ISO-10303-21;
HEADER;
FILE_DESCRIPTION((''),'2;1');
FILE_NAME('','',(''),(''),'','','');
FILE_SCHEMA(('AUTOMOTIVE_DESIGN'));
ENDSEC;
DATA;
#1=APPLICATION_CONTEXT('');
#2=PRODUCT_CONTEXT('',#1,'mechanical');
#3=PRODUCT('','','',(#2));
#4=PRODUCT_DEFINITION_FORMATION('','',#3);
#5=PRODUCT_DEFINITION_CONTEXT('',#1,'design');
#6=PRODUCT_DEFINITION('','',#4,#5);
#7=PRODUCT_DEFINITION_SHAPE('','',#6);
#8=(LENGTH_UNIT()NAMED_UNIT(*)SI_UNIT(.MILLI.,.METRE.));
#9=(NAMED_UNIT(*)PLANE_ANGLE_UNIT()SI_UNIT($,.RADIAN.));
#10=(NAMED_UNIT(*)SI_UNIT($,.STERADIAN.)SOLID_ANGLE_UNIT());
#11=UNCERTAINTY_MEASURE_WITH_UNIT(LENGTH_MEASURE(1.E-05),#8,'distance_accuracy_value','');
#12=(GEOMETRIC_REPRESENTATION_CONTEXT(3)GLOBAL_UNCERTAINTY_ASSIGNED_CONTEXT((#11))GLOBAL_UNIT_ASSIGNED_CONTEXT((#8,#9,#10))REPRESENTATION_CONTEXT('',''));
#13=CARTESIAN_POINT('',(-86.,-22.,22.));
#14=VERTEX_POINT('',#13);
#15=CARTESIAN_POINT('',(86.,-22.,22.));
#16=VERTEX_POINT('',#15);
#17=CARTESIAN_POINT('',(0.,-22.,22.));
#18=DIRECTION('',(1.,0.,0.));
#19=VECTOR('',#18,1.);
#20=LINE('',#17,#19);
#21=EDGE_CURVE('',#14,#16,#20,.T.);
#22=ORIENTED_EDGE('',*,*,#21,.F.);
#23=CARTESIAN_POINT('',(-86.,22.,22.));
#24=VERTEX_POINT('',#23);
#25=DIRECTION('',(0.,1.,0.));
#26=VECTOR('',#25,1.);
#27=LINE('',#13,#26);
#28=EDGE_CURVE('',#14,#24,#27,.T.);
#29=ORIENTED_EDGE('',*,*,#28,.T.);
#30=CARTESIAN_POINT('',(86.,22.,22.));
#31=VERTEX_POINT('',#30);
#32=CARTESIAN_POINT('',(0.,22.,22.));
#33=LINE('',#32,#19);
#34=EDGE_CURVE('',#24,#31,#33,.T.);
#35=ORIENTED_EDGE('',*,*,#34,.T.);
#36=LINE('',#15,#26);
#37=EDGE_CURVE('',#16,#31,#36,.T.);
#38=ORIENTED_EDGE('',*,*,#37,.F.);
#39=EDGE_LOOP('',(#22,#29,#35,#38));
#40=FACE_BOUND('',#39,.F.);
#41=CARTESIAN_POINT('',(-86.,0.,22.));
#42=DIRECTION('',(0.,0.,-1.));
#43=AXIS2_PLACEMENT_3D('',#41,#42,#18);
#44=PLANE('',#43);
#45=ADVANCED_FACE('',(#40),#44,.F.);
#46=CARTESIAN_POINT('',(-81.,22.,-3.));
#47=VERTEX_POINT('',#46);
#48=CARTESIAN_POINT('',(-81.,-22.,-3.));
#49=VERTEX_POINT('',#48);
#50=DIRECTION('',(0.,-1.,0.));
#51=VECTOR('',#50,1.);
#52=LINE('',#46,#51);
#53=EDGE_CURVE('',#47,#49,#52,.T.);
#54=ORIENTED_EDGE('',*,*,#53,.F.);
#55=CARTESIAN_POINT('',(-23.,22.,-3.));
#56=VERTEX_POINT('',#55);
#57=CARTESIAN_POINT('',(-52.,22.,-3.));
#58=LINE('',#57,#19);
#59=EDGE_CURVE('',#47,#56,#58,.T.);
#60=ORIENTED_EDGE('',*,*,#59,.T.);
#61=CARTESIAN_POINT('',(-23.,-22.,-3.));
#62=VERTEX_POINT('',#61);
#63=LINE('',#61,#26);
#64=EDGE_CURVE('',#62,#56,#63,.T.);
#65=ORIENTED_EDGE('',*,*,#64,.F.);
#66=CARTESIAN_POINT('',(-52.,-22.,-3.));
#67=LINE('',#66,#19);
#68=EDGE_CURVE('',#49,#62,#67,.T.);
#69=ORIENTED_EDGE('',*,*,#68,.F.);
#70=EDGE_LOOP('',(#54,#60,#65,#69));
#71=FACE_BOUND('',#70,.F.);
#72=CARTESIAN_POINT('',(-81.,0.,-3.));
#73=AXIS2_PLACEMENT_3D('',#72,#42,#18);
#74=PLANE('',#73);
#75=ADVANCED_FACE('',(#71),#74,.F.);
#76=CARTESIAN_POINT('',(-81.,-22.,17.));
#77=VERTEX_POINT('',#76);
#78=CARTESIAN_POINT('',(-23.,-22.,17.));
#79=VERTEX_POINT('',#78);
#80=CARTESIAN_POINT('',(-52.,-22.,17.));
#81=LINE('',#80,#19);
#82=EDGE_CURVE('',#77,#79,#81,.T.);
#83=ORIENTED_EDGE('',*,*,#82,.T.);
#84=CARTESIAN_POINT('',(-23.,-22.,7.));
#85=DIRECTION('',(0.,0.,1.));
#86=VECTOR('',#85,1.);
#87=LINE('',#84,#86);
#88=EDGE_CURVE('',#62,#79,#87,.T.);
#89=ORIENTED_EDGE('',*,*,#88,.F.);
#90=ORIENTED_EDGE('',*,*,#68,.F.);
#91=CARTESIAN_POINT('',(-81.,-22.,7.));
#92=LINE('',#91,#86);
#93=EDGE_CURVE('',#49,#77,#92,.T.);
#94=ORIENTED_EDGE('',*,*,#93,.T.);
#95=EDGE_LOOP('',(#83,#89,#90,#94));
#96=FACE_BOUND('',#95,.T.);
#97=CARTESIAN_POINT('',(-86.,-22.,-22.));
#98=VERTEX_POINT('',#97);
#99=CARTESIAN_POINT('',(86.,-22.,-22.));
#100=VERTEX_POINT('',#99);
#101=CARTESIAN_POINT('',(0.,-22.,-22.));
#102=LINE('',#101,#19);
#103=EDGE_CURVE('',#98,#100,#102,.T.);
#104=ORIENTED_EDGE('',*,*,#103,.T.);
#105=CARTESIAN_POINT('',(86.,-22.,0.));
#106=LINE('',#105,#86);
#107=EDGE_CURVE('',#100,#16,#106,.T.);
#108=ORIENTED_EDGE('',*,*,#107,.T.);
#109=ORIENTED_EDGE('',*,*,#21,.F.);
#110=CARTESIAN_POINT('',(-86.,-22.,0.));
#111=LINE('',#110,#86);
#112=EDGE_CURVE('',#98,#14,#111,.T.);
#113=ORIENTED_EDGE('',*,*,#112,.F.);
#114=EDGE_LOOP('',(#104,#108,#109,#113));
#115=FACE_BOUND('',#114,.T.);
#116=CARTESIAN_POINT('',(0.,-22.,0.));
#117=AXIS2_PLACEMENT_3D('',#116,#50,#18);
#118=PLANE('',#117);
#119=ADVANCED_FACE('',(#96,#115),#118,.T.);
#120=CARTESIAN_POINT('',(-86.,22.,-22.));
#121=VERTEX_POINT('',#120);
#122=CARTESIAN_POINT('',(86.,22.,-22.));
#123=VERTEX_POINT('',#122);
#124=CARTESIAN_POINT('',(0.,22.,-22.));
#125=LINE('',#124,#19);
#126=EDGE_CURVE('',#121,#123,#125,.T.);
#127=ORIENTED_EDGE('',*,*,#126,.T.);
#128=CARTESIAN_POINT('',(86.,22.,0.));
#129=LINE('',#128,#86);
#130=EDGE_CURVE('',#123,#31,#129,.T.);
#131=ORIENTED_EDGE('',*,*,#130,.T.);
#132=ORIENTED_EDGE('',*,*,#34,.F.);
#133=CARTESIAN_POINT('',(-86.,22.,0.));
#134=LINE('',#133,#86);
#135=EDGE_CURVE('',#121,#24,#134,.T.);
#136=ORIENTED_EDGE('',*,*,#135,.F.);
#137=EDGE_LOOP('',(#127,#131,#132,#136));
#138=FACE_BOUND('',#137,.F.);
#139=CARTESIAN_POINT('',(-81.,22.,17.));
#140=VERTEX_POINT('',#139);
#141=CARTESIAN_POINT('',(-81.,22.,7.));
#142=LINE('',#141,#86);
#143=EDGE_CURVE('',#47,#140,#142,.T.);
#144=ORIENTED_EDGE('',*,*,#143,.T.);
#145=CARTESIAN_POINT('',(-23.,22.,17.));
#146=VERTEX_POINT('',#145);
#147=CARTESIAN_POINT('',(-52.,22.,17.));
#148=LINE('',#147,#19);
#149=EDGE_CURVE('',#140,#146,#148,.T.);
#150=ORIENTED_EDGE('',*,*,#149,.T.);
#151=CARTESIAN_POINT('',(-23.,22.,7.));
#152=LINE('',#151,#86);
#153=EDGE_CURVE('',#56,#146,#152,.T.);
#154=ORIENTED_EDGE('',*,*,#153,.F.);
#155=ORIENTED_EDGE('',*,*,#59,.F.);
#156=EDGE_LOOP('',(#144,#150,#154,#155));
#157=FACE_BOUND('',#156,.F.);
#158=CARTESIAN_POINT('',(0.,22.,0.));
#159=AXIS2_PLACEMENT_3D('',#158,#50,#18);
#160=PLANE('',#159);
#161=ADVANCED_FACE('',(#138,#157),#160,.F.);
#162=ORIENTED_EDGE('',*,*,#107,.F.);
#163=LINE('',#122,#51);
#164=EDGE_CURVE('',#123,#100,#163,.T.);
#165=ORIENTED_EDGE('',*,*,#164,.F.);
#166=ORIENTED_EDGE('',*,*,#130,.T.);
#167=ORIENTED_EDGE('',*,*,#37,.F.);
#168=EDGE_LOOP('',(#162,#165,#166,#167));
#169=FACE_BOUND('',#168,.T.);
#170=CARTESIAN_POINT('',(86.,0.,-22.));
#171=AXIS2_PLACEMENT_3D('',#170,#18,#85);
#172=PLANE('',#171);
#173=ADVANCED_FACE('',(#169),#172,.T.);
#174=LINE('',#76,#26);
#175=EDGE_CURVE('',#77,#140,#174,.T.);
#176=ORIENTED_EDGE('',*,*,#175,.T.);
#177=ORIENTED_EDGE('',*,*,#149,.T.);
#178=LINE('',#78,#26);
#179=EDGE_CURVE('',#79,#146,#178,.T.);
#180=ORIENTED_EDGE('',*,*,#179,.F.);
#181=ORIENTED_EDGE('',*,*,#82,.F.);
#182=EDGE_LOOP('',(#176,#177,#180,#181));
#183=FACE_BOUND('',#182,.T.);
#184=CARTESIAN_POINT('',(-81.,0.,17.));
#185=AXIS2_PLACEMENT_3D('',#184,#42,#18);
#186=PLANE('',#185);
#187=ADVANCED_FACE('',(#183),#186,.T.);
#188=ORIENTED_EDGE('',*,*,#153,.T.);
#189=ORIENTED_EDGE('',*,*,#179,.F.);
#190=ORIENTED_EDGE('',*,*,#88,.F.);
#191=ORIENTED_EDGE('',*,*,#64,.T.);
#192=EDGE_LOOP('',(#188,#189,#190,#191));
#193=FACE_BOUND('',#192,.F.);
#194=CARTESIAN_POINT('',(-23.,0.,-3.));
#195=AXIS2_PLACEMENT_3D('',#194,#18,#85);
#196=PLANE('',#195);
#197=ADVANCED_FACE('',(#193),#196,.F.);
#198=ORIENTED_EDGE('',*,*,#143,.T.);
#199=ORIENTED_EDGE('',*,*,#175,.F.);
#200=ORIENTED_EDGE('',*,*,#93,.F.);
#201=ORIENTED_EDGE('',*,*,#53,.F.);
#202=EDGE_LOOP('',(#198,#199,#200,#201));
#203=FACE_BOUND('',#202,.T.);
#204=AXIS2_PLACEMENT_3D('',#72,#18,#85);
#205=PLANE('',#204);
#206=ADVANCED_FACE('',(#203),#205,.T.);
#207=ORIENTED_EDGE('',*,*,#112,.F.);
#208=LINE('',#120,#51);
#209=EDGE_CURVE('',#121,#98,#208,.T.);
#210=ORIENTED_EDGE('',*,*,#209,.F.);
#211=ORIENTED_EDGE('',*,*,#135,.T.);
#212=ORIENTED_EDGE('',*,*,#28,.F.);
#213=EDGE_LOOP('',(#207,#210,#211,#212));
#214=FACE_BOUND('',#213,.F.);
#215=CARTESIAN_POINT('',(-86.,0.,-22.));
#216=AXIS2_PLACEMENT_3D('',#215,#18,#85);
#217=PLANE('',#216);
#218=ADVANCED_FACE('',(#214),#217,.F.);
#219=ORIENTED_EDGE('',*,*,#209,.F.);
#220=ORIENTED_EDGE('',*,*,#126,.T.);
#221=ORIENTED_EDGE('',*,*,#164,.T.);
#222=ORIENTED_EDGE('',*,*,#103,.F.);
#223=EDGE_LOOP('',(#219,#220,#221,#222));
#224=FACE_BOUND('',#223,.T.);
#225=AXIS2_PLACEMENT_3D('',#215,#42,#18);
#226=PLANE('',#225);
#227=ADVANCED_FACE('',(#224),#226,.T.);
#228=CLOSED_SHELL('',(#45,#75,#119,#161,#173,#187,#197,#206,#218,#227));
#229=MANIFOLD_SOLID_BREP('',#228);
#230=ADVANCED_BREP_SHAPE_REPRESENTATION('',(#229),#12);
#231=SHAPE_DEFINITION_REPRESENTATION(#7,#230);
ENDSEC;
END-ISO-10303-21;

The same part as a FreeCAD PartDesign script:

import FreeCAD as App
import Part
import Sketcher

V = App.Vector
Q = App.Units.Quantity

doc = App.newDocument("Part")
body = doc.addObject("PartDesign::Body", "Body")

# Sketch on XZ plane
sketch1 = body.newObject("Sketcher::SketchObject", "Sketch")
sketch1.AttachmentSupport = (doc.getObject("XZ_Plane"), [""])
sketch1.MapMode = "FlatFace"
sketch1.addGeometry([
    Part.LineSegment(V(-86, 22, 0), V(-86, -22, 0)),  # 0
    Part.LineSegment(V(-86, -22, 0), V(86, -22, 0)),  # 1
    Part.LineSegment(V(86, -22, 0), V(86, 22, 0)),  # 2
    Part.LineSegment(V(86, 22, 0), V(-86, 22, 0)),  # 3
    Part.LineSegment(V(-23, -3, 0), V(-81, -3, 0)),  # 4
    Part.LineSegment(V(-81, -3, 0), V(-81, 17, 0)),  # 5
    Part.LineSegment(V(-81, 17, 0), V(-23, 17, 0)),  # 6
    Part.LineSegment(V(-23, 17, 0), V(-23, -3, 0)),  # 7
], False)
sketch1.addConstraint([
    Sketcher.Constraint("Coincident", 0, 2, 1, 1),
    Sketcher.Constraint("Coincident", 1, 2, 2, 1),
    Sketcher.Constraint("Coincident", 2, 2, 3, 1),
    Sketcher.Constraint("Coincident", 3, 2, 0, 1),
    Sketcher.Constraint("Coincident", 4, 2, 5, 1),
    Sketcher.Constraint("Coincident", 5, 2, 6, 1),
    Sketcher.Constraint("Coincident", 6, 2, 7, 1),
    Sketcher.Constraint("Coincident", 7, 2, 4, 1),
    Sketcher.Constraint("Vertical", 0),
    Sketcher.Constraint("Horizontal", 1),
    Sketcher.Constraint("Vertical", 2),
    Sketcher.Constraint("Horizontal", 3),
    Sketcher.Constraint("Horizontal", 4),
    Sketcher.Constraint("Vertical", 5),
    Sketcher.Constraint("Horizontal", 6),
    Sketcher.Constraint("Vertical", 7),
    Sketcher.Constraint("Symmetric", 0, 2, 2, 2, -1, 1),
    Sketcher.Constraint("DistanceX", 1, 1, 1, 2, Q("172 mm")),
    Sketcher.Constraint("DistanceX", 4, 2, 4, 1, Q("58 mm")),
    Sketcher.Constraint("DistanceY", 0, 2, 0, 1, Q("44 mm")),
    Sketcher.Constraint("DistanceY", 5, 1, 5, 2, Q("20 mm")),
    Sketcher.Constraint("DistanceX", 4, 2, -1, 1, Q("81 mm")),
    Sketcher.Constraint("DistanceY", 4, 2, -1, 1, Q("3 mm")),
])
pad1 = body.newObject("PartDesign::Pad", "Pad")
pad1.Profile = sketch1
pad1.Length = 44
pad1.Midplane = True

doc.recompute()
